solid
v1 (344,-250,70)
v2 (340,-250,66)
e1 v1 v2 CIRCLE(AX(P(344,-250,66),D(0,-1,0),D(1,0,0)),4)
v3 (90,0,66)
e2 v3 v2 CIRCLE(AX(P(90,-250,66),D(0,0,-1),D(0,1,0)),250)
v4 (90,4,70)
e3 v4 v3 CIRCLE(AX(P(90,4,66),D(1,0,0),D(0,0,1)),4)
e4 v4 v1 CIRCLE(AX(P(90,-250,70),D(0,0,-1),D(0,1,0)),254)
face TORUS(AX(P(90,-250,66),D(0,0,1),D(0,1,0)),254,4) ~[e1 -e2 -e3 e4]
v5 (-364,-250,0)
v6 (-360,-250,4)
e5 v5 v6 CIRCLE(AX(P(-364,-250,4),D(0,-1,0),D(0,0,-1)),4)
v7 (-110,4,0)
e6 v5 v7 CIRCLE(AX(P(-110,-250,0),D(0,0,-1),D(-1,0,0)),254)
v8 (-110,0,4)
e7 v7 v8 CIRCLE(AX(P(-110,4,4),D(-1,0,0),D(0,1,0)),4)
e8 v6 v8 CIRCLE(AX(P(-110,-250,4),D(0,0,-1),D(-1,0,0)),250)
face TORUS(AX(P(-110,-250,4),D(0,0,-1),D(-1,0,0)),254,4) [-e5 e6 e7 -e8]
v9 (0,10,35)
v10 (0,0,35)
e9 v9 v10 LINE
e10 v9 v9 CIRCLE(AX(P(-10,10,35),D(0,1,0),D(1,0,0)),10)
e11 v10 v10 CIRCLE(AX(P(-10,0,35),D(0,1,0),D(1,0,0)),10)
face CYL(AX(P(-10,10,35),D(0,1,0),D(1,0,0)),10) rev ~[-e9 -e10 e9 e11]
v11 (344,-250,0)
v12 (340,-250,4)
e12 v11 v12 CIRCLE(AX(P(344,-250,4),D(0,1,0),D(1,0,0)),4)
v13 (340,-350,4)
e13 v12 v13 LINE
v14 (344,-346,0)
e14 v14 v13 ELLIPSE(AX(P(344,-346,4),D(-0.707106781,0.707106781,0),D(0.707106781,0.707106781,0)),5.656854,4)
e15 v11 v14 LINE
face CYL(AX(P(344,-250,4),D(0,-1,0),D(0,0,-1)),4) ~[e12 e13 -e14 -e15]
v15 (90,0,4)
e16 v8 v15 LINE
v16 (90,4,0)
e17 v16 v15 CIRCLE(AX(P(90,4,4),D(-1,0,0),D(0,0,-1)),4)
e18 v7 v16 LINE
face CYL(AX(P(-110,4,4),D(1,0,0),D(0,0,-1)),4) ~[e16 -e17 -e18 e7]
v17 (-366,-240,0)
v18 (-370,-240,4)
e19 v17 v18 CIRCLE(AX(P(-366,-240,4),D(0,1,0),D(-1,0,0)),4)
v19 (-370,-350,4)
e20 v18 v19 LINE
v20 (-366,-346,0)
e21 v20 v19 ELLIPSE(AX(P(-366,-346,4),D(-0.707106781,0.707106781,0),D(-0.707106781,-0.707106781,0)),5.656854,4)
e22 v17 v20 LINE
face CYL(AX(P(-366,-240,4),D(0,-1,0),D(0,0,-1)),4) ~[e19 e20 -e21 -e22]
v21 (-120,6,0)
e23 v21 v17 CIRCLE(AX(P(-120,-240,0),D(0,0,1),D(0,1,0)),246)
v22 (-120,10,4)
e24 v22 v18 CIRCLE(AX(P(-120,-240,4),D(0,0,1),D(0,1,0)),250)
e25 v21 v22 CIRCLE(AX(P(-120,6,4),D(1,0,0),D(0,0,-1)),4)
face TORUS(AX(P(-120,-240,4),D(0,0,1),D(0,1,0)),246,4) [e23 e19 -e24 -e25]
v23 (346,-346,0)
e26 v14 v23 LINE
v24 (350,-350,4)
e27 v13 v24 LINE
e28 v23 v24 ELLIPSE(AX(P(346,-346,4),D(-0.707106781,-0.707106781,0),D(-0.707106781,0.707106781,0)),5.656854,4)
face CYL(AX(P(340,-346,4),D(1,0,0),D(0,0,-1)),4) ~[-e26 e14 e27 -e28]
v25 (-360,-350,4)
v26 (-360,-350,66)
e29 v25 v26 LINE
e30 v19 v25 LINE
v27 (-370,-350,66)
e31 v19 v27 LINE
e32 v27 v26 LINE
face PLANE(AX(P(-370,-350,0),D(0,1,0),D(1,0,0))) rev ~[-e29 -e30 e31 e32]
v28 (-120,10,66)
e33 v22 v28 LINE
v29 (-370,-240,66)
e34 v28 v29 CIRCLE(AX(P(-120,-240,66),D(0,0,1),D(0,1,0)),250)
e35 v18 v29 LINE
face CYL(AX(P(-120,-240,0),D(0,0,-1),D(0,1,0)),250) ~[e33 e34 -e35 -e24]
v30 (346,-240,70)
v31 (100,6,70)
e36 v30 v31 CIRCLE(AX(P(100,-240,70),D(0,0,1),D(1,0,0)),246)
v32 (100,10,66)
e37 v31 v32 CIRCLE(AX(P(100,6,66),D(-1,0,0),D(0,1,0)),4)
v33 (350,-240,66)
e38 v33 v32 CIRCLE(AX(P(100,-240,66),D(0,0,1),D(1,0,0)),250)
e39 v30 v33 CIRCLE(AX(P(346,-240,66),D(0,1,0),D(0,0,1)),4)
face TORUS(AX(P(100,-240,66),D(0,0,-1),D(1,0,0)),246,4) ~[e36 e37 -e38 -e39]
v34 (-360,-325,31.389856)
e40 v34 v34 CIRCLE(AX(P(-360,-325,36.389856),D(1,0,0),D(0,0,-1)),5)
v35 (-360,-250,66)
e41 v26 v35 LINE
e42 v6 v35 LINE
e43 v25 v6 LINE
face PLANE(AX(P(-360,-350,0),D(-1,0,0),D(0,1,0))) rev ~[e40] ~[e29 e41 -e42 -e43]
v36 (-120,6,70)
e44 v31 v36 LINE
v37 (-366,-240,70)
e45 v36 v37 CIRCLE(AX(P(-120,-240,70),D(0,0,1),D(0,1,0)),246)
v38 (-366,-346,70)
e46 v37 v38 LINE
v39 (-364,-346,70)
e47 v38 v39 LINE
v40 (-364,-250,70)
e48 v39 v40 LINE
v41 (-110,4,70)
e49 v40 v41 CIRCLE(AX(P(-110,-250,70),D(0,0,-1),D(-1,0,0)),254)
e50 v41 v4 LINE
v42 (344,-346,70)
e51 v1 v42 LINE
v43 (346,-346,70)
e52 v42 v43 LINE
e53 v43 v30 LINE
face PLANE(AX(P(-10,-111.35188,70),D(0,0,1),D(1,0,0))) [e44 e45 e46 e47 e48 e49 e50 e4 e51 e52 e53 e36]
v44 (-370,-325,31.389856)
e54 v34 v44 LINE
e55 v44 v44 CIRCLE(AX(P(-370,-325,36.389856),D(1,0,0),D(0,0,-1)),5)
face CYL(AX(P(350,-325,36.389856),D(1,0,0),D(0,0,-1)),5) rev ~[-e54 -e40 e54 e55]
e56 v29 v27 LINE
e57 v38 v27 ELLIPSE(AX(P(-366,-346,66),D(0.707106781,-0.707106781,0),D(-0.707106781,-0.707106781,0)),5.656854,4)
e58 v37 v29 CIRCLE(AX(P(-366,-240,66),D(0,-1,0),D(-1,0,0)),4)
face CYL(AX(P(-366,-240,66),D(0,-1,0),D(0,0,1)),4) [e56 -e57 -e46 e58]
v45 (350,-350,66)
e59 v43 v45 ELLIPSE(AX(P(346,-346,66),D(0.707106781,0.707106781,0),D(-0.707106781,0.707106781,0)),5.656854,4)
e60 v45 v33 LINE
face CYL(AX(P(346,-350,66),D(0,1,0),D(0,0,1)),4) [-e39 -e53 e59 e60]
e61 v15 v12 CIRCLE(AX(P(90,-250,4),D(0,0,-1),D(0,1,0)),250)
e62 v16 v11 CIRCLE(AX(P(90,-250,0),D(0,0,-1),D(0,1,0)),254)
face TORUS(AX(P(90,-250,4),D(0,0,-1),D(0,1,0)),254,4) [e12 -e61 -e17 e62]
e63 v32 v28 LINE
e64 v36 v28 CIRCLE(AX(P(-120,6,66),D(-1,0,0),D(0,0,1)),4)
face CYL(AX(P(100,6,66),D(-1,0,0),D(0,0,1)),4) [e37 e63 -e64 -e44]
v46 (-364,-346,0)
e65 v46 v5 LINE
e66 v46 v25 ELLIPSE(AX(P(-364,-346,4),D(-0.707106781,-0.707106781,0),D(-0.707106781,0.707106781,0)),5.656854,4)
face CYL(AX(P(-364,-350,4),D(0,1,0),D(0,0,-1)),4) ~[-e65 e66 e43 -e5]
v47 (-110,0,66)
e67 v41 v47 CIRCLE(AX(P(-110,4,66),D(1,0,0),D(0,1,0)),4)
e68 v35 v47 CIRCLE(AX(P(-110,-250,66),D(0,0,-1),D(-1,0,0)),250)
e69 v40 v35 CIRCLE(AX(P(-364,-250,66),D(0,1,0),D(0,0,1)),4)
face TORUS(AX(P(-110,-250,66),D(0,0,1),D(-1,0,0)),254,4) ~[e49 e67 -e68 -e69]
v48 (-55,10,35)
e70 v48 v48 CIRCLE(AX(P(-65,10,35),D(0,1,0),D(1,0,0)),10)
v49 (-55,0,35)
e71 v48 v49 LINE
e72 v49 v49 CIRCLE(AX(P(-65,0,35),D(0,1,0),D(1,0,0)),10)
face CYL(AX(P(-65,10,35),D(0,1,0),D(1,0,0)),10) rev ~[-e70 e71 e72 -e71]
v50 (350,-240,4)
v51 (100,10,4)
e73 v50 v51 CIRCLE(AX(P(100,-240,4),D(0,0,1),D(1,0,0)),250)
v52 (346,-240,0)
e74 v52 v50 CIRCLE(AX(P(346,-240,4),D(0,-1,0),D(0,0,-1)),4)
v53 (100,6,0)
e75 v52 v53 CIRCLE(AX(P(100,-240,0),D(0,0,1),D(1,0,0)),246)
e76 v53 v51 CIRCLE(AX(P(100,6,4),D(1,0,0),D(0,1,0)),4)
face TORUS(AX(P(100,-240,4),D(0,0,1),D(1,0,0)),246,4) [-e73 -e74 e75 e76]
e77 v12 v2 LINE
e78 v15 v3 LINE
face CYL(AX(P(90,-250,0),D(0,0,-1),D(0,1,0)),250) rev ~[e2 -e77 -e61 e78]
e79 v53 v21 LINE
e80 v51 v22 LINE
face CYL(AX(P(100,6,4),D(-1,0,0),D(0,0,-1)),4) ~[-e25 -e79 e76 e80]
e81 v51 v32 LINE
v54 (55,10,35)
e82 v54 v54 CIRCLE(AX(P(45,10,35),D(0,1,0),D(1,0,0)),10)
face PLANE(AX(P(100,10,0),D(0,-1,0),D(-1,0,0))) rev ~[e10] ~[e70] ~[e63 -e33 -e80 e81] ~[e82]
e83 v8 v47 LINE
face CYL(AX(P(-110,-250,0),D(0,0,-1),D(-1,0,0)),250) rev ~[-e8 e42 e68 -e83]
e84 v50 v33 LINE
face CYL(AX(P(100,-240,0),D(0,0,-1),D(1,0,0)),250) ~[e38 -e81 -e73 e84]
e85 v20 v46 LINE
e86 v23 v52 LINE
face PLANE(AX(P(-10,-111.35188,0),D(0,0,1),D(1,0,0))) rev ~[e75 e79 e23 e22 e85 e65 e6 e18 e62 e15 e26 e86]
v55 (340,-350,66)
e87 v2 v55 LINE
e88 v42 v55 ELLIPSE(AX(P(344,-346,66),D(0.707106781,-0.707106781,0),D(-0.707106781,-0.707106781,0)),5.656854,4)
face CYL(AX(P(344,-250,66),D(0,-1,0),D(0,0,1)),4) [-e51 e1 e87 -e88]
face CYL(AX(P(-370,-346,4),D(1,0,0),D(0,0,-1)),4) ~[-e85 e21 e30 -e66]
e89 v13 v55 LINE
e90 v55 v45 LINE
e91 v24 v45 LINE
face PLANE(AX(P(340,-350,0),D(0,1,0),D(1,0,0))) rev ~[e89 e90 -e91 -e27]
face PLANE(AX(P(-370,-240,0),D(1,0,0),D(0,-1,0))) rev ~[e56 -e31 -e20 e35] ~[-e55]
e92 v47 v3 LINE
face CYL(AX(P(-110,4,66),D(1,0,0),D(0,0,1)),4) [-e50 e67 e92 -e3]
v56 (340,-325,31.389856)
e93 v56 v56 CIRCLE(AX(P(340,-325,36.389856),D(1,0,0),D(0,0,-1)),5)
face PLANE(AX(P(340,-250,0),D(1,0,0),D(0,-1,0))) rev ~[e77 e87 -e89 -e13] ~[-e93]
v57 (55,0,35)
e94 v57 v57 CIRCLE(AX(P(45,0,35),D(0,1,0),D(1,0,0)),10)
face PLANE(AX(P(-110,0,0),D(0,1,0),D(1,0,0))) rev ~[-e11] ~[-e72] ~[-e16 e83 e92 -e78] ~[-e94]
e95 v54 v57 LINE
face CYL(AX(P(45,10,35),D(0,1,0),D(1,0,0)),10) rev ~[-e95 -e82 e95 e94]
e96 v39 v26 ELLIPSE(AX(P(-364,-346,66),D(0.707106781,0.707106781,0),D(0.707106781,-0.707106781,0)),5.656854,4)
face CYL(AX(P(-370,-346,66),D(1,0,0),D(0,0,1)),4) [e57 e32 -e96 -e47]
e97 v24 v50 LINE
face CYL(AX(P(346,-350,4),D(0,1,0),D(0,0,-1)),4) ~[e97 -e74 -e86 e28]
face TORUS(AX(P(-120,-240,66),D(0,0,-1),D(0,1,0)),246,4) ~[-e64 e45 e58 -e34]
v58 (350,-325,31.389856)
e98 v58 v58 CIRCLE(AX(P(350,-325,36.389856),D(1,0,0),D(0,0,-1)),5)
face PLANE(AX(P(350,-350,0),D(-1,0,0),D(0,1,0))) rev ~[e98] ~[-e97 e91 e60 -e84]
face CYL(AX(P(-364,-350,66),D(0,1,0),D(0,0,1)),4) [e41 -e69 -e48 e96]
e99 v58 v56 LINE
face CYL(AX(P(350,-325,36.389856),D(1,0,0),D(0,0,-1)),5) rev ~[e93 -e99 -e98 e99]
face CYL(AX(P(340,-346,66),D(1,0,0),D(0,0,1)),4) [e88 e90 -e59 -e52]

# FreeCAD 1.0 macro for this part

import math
import FreeCAD as App
import Part
import Sketcher
from FreeCAD import Vector


def edges_at(feature, points):
    """Names of the edges that pass closest to the given points."""
    edges = feature.Shape.Edges
    near = lambda p: min(range(len(edges)), key=lambda i: edges[i].distToShape(Part.Vertex(*p))[0])
    return sorted({f"Edge{near(p) + 1}" for p in points})

doc = App.newDocument("Part")
params = doc.addObject("Spreadsheet::Sheet", "Params")
for row, (alias, value) in enumerate([
    ("sketch1_radius", "250 mm"),
    ("sketch1_width", "200 mm"),
    ("sketch1_width2", "10 mm"),
    ("sketch1_height", "100 mm"),
    ("sketch1_height2", "110 mm"),
    ("pad1_length", "70 mm"),
    ("sketch2_diameter", "10 mm"),
    ("pocket1_length", "816 mm"),
    ("sketch3_diameter", "20 mm"),
    ("pocket2_length", "143 mm"),
    ("fillet_radius", "4 mm"),
], start=1):
    params.set(f"A{row}", alias)
    params.set(f"B{row}", "=" + value)
    params.setAlias(f"B{row}", alias)

body = doc.addObject("PartDesign::Body", "Body")

# Sketch on XY plane
sketch1 = body.newObject("Sketcher::SketchObject", "Sketch")
sketch1.AttachmentSupport = (doc.getObject("XY_Plane"), [""])
sketch1.MapMode = "FlatFace"
sketch1.addGeometry(Part.LineSegment(Vector(-110, 0, 0), Vector(90, 0, 0)), False)
sketch1.addGeometry(Part.ArcOfCircle(Part.Circle(Vector(90, -250, 0), Vector(0, 0, 1), 250), math.radians(0), math.radians(90)), False)
sketch1.addGeometry(Part.LineSegment(Vector(340, -250, 0), Vector(340, -350, 0)), False)
sketch1.addGeometry(Part.LineSegment(Vector(340, -350, 0), Vector(350, -350, 0)), False)
sketch1.addGeometry(Part.LineSegment(Vector(350, -350, 0), Vector(350, -240, 0)), False)
sketch1.addGeometry(Part.ArcOfCircle(Part.Circle(Vector(100, -240, 0), Vector(0, 0, 1), 250), math.radians(0), math.radians(90)), False)
sketch1.addGeometry(Part.LineSegment(Vector(100, 10, 0), Vector(-120, 10, 0)), False)
sketch1.addGeometry(Part.ArcOfCircle(Part.Circle(Vector(-120, -240, 0), Vector(0, 0, 1), 250), math.radians(90), math.radians(180)), False)
sketch1.addGeometry(Part.LineSegment(Vector(-370, -240, 0), Vector(-370, -350, 0)), False)
sketch1.addGeometry(Part.LineSegment(Vector(-370, -350, 0), Vector(-360, -350, 0)), False)
sketch1.addGeometry(Part.LineSegment(Vector(-360, -350, 0), Vector(-360, -250, 0)), False)
sketch1.addGeometry(Part.ArcOfCircle(Part.Circle(Vector(-110, -250, 0), Vector(0, 0, 1), 250), math.radians(90), math.radians(180)), False)
sketch1.addConstraint(Sketcher.Constraint("Tangent", 0, 2, 1, 2))
sketch1.addConstraint(Sketcher.Constraint("Tangent", 1, 1, 2, 1))
sketch1.addConstraint(Sketcher.Constraint("Coincident", 2, 2, 3, 1))
sketch1.addConstraint(Sketcher.Constraint("Coincident", 3, 2, 4, 1))
sketch1.addConstraint(Sketcher.Constraint("Tangent", 4, 2, 5, 1))
sketch1.addConstraint(Sketcher.Constraint("Tangent", 5, 2, 6, 1))
sketch1.addConstraint(Sketcher.Constraint("Tangent", 6, 2, 7, 1))
sketch1.addConstraint(Sketcher.Constraint("Tangent", 7, 2, 8, 1))
sketch1.addConstraint(Sketcher.Constraint("Coincident", 8, 2, 9, 1))
sketch1.addConstraint(Sketcher.Constraint("Coincident", 9, 2, 10, 1))
sketch1.addConstraint(Sketcher.Constraint("Tangent", 10, 2, 11, 2))
sketch1.addConstraint(Sketcher.Constraint("Tangent", 11, 1, 0, 1))
sketch1.addConstraint(Sketcher.Constraint("Horizontal", 0))
sketch1.addConstraint(Sketcher.Constraint("Vertical", 2))
sketch1.addConstraint(Sketcher.Constraint("Horizontal", 3))
sketch1.addConstraint(Sketcher.Constraint("Vertical", 4))
sketch1.addConstraint(Sketcher.Constraint("Horizontal", 6))
sketch1.addConstraint(Sketcher.Constraint("Vertical", 8))
sketch1.addConstraint(Sketcher.Constraint("Horizontal", 9))
sketch1.addConstraint(Sketcher.Constraint("Vertical", 10))
sketch1.addConstraint(Sketcher.Constraint("Equal", 1, 5))
sketch1.addConstraint(Sketcher.Constraint("Equal", 5, 7))
sketch1.addConstraint(Sketcher.Constraint("Equal", 7, 11))
sketch1.addConstraint(Sketcher.Constraint("PointOnObject", 0, 2, -1))
sketch1.addConstraint(Sketcher.Constraint("Horizontal", 3, 2, 8, 2))
sketch1.addConstraint(Sketcher.Constraint("Equal", 3, 9))
sketch1.addConstraint(Sketcher.Constraint("Radius", 1, 250.0))
sketch1.addConstraint(Sketcher.Constraint("DistanceX", 0, 1, 0, 2, 200.0))
sketch1.addConstraint(Sketcher.Constraint("DistanceX", 3, 1, 3, 2, 10.0))
sketch1.addConstraint(Sketcher.Constraint("DistanceY", 2, 2, 2, 1, 100.0))
sketch1.addConstraint(Sketcher.Constraint("DistanceY", 4, 1, 4, 2, 110.0))
sketch1.addConstraint(Sketcher.Constraint("DistanceX", -1, 1, 1, 3, 90.0))
sketch1.setExpression("Constraints[26]", "Params.sketch1_radius")
sketch1.setExpression("Constraints[27]", "Params.sketch1_width")
sketch1.setExpression("Constraints[28]", "Params.sketch1_width2")
sketch1.setExpression("Constraints[29]", "Params.sketch1_height")
sketch1.setExpression("Constraints[30]", "Params.sketch1_height2")
pad1 = body.newObject("PartDesign::Pad", "Pad")
pad1.Profile = sketch1
pad1.setExpression("Length", "Params.pad1_length")

# Sketch on YZ plane
sketch2 = body.newObject("Sketcher::SketchObject", "Sketch001")
sketch2.AttachmentSupport = (doc.getObject("YZ_Plane"), [""])
sketch2.MapMode = "FlatFace"
sketch2.AttachmentOffset = App.Placement(Vector(0, 0, 350), App.Rotation())
sketch2.addGeometry(Part.Circle(Vector(-325, 36.389856, 0), Vector(0, 0, 1), 5), False)
sketch2.addConstraint(Sketcher.Constraint("Diameter", 0, 10.0))
sketch2.addConstraint(Sketcher.Constraint("DistanceX", 0, 3, -1, 1, 325.0))
sketch2.addConstraint(Sketcher.Constraint("DistanceY", -1, 1, 0, 3, 36.389856))
sketch2.setExpression("Constraints[0]", "Params.sketch2_diameter")
pocket1 = body.newObject("PartDesign::Pocket", "Pocket")
pocket1.Profile = sketch2
pocket1.setExpression("Length", "Params.pocket1_length")

# Sketch on XZ plane
sketch3 = body.newObject("Sketcher::SketchObject", "Sketch002")
sketch3.AttachmentSupport = (doc.getObject("XZ_Plane"), [""])
sketch3.MapMode = "FlatFace"
sketch3.AttachmentOffset = App.Placement(Vector(0, 0, -10), App.Rotation())
sketch3.addGeometry(Part.Circle(Vector(-65, 35, 0), Vector(0, 0, 1), 10), False)
sketch3.addGeometry(Part.Circle(Vector(-10, 35, 0), Vector(0, 0, 1), 10), False)
sketch3.addGeometry(Part.Circle(Vector(45, 35, 0), Vector(0, 0, 1), 10), False)
sketch3.addConstraint(Sketcher.Constraint("Equal", 0, 1))
sketch3.addConstraint(Sketcher.Constraint("Equal", 1, 2))
sketch3.addConstraint(Sketcher.Constraint("Horizontal", 0, 3, 1, 3))
sketch3.addConstraint(Sketcher.Constraint("Horizontal", 1, 3, 2, 3))
sketch3.addConstraint(Sketcher.Constraint("Diameter", 0, 20.0))
sketch3.addConstraint(Sketcher.Constraint("DistanceX", 0, 3, -1, 1, 65.0))
sketch3.addConstraint(Sketcher.Constraint("DistanceY", -1, 1, 0, 3, 35.0))
sketch3.addConstraint(Sketcher.Constraint("DistanceX", 1, 3, -1, 1, 10.0))
sketch3.addConstraint(Sketcher.Constraint("DistanceX", -1, 1, 2, 3, 45.0))
sketch3.setExpression("Constraints[4]", "Params.sketch3_diameter")
pocket2 = body.newObject("PartDesign::Pocket", "Pocket001")
pocket2.Profile = sketch3
pocket2.setExpression("Length", "Params.pocket2_length")
pocket2.Reversed = True
doc.recompute()

fillet = body.newObject("PartDesign::Fillet", "Fillet")
fillet.Base = (pocket2, edges_at(pocket2, [
    (-296.777, -63.223, 70),
    (350, -295, 0),
    (345, -350, 0),
    (340, -300, 0),
    (266.777, -73.223, 0),
    (-10, 0, 0),
    (-286.777, -73.223, 0),
    (-370, -295, 70),
    (-360, -300, 0),
    (-365, -350, 0),
    (-370, -295, 0),
    (-296.777, -63.223, 0),
    (-10, 10, 0),
    (276.777, -63.223, 0),
    (-365, -350, 70),
    (-360, -300, 70),
    (-286.777, -73.223, 70),
    (-10, 0, 70),
    (266.777, -73.223, 70),
    (340, -300, 70),
    (345, -350, 70),
    (350, -295, 70),
    (276.777, -63.223, 70),
    (-10, 10, 70),
]))
fillet.setExpression("Radius", "Params.fillet_radius")

doc.recompute()
